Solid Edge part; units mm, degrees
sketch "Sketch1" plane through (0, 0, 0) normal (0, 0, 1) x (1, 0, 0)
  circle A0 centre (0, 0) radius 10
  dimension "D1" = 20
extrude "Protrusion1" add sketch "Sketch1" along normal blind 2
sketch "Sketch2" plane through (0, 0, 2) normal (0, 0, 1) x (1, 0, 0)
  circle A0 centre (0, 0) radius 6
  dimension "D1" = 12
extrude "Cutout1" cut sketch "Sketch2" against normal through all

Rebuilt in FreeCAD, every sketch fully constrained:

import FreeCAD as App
import Part
import Sketcher
from FreeCAD import Vector
Q = App.Units.Quantity

doc = App.newDocument("Part")
body = doc.addObject("PartDesign::Body", "Body")

# Sketch on XY plane
sketch1 = body.newObject("Sketcher::SketchObject", "Sketch")
sketch1.AttachmentSupport = (doc.getObject("XY_Plane"), [""])
sketch1.MapMode = "FlatFace"
sketch1.addGeometry(Part.Circle(Vector(0, 0, 0), Vector(0, 0, 1), 10), False)
sketch1.addConstraint(Sketcher.Constraint("Coincident", 0, 3, -1, 1))
sketch1.addConstraint(Sketcher.Constraint("Diameter", 0, Q("20 mm")))
pad1 = body.newObject("PartDesign::Pad", "Pad")
pad1.Profile = sketch1
pad1.Length = 2

# Sketch on XY plane
sketch2 = body.newObject("Sketcher::SketchObject", "Sketch001")
sketch2.AttachmentSupport = (doc.getObject("XY_Plane"), [""])
sketch2.MapMode = "FlatFace"
sketch2.AttachmentOffset = App.Placement(Vector(0, 0, 2), App.Rotation())
sketch2.addGeometry(Part.Circle(Vector(0, 0, 0), Vector(0, 0, 1), 6), False)
sketch2.addConstraint(Sketcher.Constraint("Coincident", 0, 3, -1, 1))
sketch2.addConstraint(Sketcher.Constraint("Diameter", 0, Q("12 mm")))
pocket1 = body.newObject("PartDesign::Pocket", "Pocket")
pocket1.Profile = sketch2
pocket1.Type = "ThroughAll"

doc.recompute()
